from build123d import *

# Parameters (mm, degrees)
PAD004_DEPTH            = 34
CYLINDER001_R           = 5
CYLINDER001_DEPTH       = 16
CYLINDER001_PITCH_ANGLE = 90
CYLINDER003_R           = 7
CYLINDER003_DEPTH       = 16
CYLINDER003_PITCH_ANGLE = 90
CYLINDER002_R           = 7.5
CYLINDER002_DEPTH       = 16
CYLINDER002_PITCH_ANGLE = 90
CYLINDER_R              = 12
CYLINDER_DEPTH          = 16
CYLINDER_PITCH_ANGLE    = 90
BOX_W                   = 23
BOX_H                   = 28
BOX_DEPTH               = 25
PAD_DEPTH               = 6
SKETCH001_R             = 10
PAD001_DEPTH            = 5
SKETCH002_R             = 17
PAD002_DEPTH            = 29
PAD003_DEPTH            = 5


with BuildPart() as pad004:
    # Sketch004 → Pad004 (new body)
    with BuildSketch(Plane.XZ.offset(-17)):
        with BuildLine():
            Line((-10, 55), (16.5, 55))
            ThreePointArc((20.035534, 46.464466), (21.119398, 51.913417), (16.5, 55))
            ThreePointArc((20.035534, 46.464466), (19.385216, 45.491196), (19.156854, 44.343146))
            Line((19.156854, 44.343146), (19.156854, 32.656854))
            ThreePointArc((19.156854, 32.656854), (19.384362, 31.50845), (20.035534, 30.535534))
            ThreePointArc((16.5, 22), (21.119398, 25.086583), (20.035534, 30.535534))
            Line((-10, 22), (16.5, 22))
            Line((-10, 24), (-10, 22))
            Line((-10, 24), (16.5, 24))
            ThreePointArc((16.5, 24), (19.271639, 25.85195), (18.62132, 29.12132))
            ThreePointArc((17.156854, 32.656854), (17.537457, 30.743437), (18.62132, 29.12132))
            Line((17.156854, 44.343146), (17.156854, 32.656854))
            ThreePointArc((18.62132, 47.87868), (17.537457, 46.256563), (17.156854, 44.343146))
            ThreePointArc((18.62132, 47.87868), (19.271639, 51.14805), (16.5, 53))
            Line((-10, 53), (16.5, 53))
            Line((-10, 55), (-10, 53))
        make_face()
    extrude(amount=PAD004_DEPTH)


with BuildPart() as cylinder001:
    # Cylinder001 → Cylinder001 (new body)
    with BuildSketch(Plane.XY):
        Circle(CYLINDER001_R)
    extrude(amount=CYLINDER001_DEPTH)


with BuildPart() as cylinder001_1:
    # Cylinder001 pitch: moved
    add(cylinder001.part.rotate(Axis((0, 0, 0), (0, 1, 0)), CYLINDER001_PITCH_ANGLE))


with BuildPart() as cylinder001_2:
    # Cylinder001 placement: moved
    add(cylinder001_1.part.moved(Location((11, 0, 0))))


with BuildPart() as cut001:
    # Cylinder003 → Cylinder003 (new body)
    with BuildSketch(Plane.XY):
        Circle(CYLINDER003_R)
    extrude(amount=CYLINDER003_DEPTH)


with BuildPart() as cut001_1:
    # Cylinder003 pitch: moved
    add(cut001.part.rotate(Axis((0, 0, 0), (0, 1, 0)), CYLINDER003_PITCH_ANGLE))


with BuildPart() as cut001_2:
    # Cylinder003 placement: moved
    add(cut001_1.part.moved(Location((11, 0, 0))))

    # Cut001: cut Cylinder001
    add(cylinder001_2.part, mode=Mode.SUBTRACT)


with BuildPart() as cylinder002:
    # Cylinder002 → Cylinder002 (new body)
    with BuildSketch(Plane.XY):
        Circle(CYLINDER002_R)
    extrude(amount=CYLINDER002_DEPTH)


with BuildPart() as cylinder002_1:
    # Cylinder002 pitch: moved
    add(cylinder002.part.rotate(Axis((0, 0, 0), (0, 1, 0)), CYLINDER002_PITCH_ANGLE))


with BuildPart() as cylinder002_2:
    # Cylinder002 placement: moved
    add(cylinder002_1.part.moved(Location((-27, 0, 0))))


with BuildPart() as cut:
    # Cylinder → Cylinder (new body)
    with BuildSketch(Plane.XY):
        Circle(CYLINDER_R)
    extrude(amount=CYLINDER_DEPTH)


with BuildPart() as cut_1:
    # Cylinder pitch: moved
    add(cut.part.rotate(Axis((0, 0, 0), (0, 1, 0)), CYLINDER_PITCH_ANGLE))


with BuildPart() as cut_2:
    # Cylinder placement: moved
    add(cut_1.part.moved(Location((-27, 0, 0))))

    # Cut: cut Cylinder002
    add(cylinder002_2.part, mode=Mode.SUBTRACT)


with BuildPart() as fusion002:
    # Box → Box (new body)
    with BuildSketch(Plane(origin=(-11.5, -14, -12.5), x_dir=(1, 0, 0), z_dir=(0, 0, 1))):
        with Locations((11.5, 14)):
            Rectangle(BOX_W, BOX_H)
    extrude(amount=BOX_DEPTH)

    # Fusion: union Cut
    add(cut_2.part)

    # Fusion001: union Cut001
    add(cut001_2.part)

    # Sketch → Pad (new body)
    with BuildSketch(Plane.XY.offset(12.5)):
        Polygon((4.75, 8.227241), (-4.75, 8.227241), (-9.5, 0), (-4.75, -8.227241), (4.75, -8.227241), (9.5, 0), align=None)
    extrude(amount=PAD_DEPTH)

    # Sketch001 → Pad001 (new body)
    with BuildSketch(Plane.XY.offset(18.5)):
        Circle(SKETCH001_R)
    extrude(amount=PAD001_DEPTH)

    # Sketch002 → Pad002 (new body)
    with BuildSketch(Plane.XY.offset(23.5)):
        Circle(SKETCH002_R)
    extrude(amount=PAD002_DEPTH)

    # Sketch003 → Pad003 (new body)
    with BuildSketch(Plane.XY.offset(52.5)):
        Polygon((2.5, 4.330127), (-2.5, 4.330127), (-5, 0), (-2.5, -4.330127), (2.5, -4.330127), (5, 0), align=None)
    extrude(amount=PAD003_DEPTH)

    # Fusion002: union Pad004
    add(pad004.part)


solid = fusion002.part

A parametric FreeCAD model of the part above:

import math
import FreeCAD as App
import Part
import Sketcher

V = App.Vector
Q = App.Units.Quantity


def add_polygon(sketch, points):
    """Adds a closed chain of lines whose ends are joined by coincident constraints."""
    first, n = sketch.GeometryCount, len(points)
    for a, b in zip(points, points[1:] + points[:1]):
        sketch.addGeometry(Part.LineSegment(App.Vector(*a, 0), App.Vector(*b, 0)), False)
    for i in range(n):
        sketch.addConstraint(Sketcher.Constraint("Coincident", first + i, 2, first + (i + 1) % n, 1))

doc = App.newDocument("Part")
body = doc.addObject("PartDesign::Body", "Body")

sketch1 = body.newObject("Sketcher::SketchObject", "Sketch")
sketch1.AttachmentSupport = (doc.getObject("XZ_Plane"), [""])
sketch1.MapMode = "FlatFace"
sketch1.AttachmentOffset = App.Placement(V(0, 0, -17), App.Rotation())
sketch1.addGeometry(Part.LineSegment(V(16.5, 55, 0), V(-10, 55, 0)), False)
sketch1.addGeometry(Part.LineSegment(V(-10, 55, 0), V(-10, 53, 0)), False)
sketch1.addGeometry(Part.LineSegment(V(-10, 53, 0), V(16.5, 53, 0)), False)
sketch1.addGeometry(Part.ArcOfCircle(Part.Circle(V(16.500001, 50.000001, 0), V(0, 0, 1), 2.999999), math.radians(-45.000016), math.radians(90.000012)), False)
sketch1.addGeometry(Part.ArcOfCircle(Part.Circle(V(22.156863, 44.343142, 0), V(0, 0, 1), 5.000009), math.radians(135.000045), math.radians(179.999959)), False)
sketch1.addGeometry(Part.LineSegment(V(17.156854, 44.343146, 0), V(17.156854, 32.656854, 0)), False)
sketch1.addGeometry(Part.ArcOfCircle(Part.Circle(V(22.156863, 32.656858, 0), V(0, 0, 1), 5.000009), math.radians(-179.999959), math.radians(-135.000045)), False)
sketch1.addGeometry(Part.ArcOfCircle(Part.Circle(V(16.500001, 26.999999, 0), V(0, 0, 1), 2.999999), math.radians(-90.000012), math.radians(45.000016)), False)
sketch1.addGeometry(Part.LineSegment(V(16.5, 24, 0), V(-10, 24, 0)), False)
sketch1.addGeometry(Part.LineSegment(V(-10, 24, 0), V(-10, 22, 0)), False)
sketch1.addGeometry(Part.LineSegment(V(-10, 22, 0), V(16.5, 22, 0)), False)
sketch1.addGeometry(Part.ArcOfCircle(Part.Circle(V(16.5, 27, 0), V(0, 0, 1), 5), math.radians(-90.000003), math.radians(45.000003)), False)
sketch1.addGeometry(Part.ArcOfCircle(Part.Circle(V(22.145682, 32.652227, 0), V(0, 0, 1), 2.988832), math.radians(179.911303), math.radians(225.088719)), False)
sketch1.addGeometry(Part.LineSegment(V(19.156854, 32.656854, 0), V(19.156854, 44.343146, 0)), False)
sketch1.addGeometry(Part.ArcOfCircle(Part.Circle(V(22.156859, 44.343143, 0), V(0, 0, 1), 3.000005), math.radians(135.000029), math.radians(179.999948)), False)
sketch1.addGeometry(Part.ArcOfCircle(Part.Circle(V(16.5, 50, 0), V(0, 0, 1), 5), math.radians(-45.000003), math.radians(90.000003)), False)
sketch1.addConstraint(Sketcher.Constraint("Coincident", 0, 2, 1, 1))
sketch1.addConstraint(Sketcher.Constraint("Coincident", 1, 2, 2, 1))
sketch1.addConstraint(Sketcher.Constraint("Tangent", 2, 2, 3, 2))
sketch1.addConstraint(Sketcher.Constraint("Tangent", 3, 1, 4, 1))
sketch1.addConstraint(Sketcher.Constraint("Tangent", 4, 2, 5, 1))
sketch1.addConstraint(Sketcher.Constraint("Tangent", 5, 2, 6, 1))
sketch1.addConstraint(Sketcher.Constraint("Tangent", 6, 2, 7, 2))
sketch1.addConstraint(Sketcher.Constraint("Tangent", 7, 1, 8, 1))
sketch1.addConstraint(Sketcher.Constraint("Coincident", 8, 2, 9, 1))
sketch1.addConstraint(Sketcher.Constraint("Coincident", 9, 2, 10, 1))
sketch1.addConstraint(Sketcher.Constraint("Tangent", 10, 2, 11, 1))
sketch1.addConstraint(Sketcher.Constraint("Coincident", 11, 2, 12, 2))
sketch1.addConstraint(Sketcher.Constraint("Coincident", 12, 1, 13, 1))
sketch1.addConstraint(Sketcher.Constraint("Tangent", 13, 2, 14, 2))
sketch1.addConstraint(Sketcher.Constraint("Tangent", 14, 1, 15, 1))
sketch1.addConstraint(Sketcher.Constraint("Tangent", 15, 2, 0, 1))
sketch1.addConstraint(Sketcher.Constraint("Horizontal", 0))
sketch1.addConstraint(Sketcher.Constraint("Vertical", 1))
sketch1.addConstraint(Sketcher.Constraint("Horizontal", 2))
sketch1.addConstraint(Sketcher.Constraint("Vertical", 5))
sketch1.addConstraint(Sketcher.Constraint("Horizontal", 8))
sketch1.addConstraint(Sketcher.Constraint("Vertical", 9))
sketch1.addConstraint(Sketcher.Constraint("Horizontal", 10))
sketch1.addConstraint(Sketcher.Constraint("Vertical", 13))
sketch1.addConstraint(Sketcher.Constraint("Coincident", 11, 3, 7, 3))
sketch1.addConstraint(Sketcher.Constraint("Coincident", 14, 3, 4, 3))
sketch1.addConstraint(Sketcher.Constraint("Coincident", 15, 3, 3, 3))
sketch1.addConstraint(Sketcher.Constraint("Equal", 4, 6))
sketch1.addConstraint(Sketcher.Constraint("Equal", 3, 7))
sketch1.addConstraint(Sketcher.Constraint("Equal", 11, 15))
sketch1.addConstraint(Sketcher.Constraint("Horizontal", 5, 2, 12, 1))
sketch1.addConstraint(Sketcher.Constraint("Vertical", 3, 3, 7, 3))
sketch1.addConstraint(Sketcher.Constraint("Vertical", 1, 2, 8, 2))
sketch1.addConstraint(Sketcher.Constraint("Vertical", 11, 2, 14, 1))
sketch1.addConstraint(Sketcher.Constraint("Radius", 3, 2.999999))
sketch1.addConstraint(Sketcher.Constraint("Radius", 11, 5.0))
sketch1.addConstraint(Sketcher.Constraint("DistanceX", 0, 2, 0, 1, 26.5))
sketch1.addConstraint(Sketcher.Constraint("DistanceY", -1, 1, 3, 3, 50.000001))
sketch1.addConstraint(Sketcher.Constraint("DistanceY", -1, 1, 7, 3, 26.999999))
sketch1.addConstraint(Sketcher.Constraint("DistanceX", 0, 2, -1, 1, 10.0))
sketch1.addConstraint(Sketcher.Constraint("Radius", 4, 5.000009))
sketch1.addConstraint(Sketcher.Constraint("Radius", 12, 2.988832))
sketch1.addConstraint(Sketcher.Constraint("DistanceY", 5, 2, 5, 1, 11.686292))
pad1 = body.newObject("PartDesign::Pad", "Pad")
pad1.Profile = sketch1
pad1.Length = 34
body2 = doc.addObject("PartDesign::Body", "Body001")

sketch2 = body2.newObject("Sketcher::SketchObject", "Sketch001")
sketch2.AttachmentSupport = (doc.getObject("XY_Plane001"), [""])
sketch2.MapMode = "FlatFace"
sketch2.addGeometry(Part.Circle(V(0, 0, 0), V(0, 0, 1), 5), False)
sketch2.addConstraint(Sketcher.Constraint("Coincident", 0, 3, -1, 1))
sketch2.addConstraint(Sketcher.Constraint("Diameter", 0, 10.0))
pad2 = body2.newObject("PartDesign::Pad", "Pad001")
pad2.Profile = sketch2
pad2.Length = 16
body3 = doc.addObject("PartDesign::Body", "Body002")
doc.recompute()

body2.Placement = App.Placement(V(0, 0, 0), App.Rotation(V(0, 1, 0), 90))
boolean = body3.newObject("PartDesign::Boolean", "Boolean")
boolean.Type = "Fuse"
boolean.addObjects([body2])
body4 = doc.addObject("PartDesign::Body", "Body003")
doc.recompute()

body3.Placement = App.Placement(V(11, 0, 0), App.Rotation(V(0, 0, 1), 0))
boolean2 = body4.newObject("PartDesign::Boolean", "Boolean001")
boolean2.Type = "Fuse"
boolean2.addObjects([body3])
body5 = doc.addObject("PartDesign::Body", "Body004")

sketch3 = body5.newObject("Sketcher::SketchObject", "Sketch002")
sketch3.AttachmentSupport = (doc.getObject("XY_Plane004"), [""])
sketch3.MapMode = "FlatFace"
sketch3.addGeometry(Part.Circle(V(0, 0, 0), V(0, 0, 1), 7), False)
sketch3.addConstraint(Sketcher.Constraint("Coincident", 0, 3, -1, 1))
sketch3.addConstraint(Sketcher.Constraint("Diameter", 0, 14.0))
pad3 = body5.newObject("PartDesign::Pad", "Pad002")
pad3.Profile = sketch3
pad3.Length = 16
body6 = doc.addObject("PartDesign::Body", "Body005")
doc.recompute()

body5.Placement = App.Placement(V(0, 0, 0), App.Rotation(V(0, 1, 0), 90))
boolean3 = body6.newObject("PartDesign::Boolean", "Boolean002")
boolean3.Type = "Fuse"
boolean3.addObjects([body5])
body7 = doc.addObject("PartDesign::Body", "Body006")
doc.recompute()

body6.Placement = App.Placement(V(11, 0, 0), App.Rotation(V(0, 0, 1), 0))
boolean4 = body7.newObject("PartDesign::Boolean", "Boolean003")
boolean4.Type = "Fuse"
boolean4.addObjects([body6])
doc.recompute()

boolean5 = body7.newObject("PartDesign::Boolean", "Boolean004")
boolean5.Type = "Cut"
boolean5.addObjects([body4])
body8 = doc.addObject("PartDesign::Body", "Body007")

sketch4 = body8.newObject("Sketcher::SketchObject", "Sketch003")
sketch4.AttachmentSupport = (doc.getObject("XY_Plane007"), [""])
sketch4.MapMode = "FlatFace"
sketch4.addGeometry(Part.Circle(V(0, 0, 0), V(0, 0, 1), 7.5), False)
sketch4.addConstraint(Sketcher.Constraint("Coincident", 0, 3, -1, 1))
sketch4.addConstraint(Sketcher.Constraint("Diameter", 0, 15.0))
pad4 = body8.newObject("PartDesign::Pad", "Pad003")
pad4.Profile = sketch4
pad4.Length = 16
body9 = doc.addObject("PartDesign::Body", "Body008")
doc.recompute()

body8.Placement = App.Placement(V(0, 0, 0), App.Rotation(V(0, 1, 0), 90))
boolean6 = body9.newObject("PartDesign::Boolean", "Boolean005")
boolean6.Type = "Fuse"
boolean6.addObjects([body8])
body10 = doc.addObject("PartDesign::Body", "Body009")
doc.recompute()

body9.Placement = App.Placement(V(-27, 0, 0), App.Rotation(V(0, 0, 1), 0))
boolean7 = body10.newObject("PartDesign::Boolean", "Boolean006")
boolean7.Type = "Fuse"
boolean7.addObjects([body9])
body11 = doc.addObject("PartDesign::Body", "Body010")

sketch5 = body11.newObject("Sketcher::SketchObject", "Sketch004")
sketch5.AttachmentSupport = (doc.getObject("XY_Plane010"), [""])
sketch5.MapMode = "FlatFace"
sketch5.addGeometry(Part.Circle(V(0, 0, 0), V(0, 0, 1), 12), False)
sketch5.addConstraint(Sketcher.Constraint("Coincident", 0, 3, -1, 1))
sketch5.addConstraint(Sketcher.Constraint("Diameter", 0, 24.0))
pad5 = body11.newObject("PartDesign::Pad", "Pad004")
pad5.Profile = sketch5
pad5.Length = 16
body12 = doc.addObject("PartDesign::Body", "Body011")
doc.recompute()

body11.Placement = App.Placement(V(0, 0, 0), App.Rotation(V(0, 1, 0), 90))
boolean8 = body12.newObject("PartDesign::Boolean", "Boolean007")
boolean8.Type = "Fuse"
boolean8.addObjects([body11])
body13 = doc.addObject("PartDesign::Body", "Body012")
doc.recompute()

body12.Placement = App.Placement(V(-27, 0, 0), App.Rotation(V(0, 0, 1), 0))
boolean9 = body13.newObject("PartDesign::Boolean", "Boolean008")
boolean9.Type = "Fuse"
boolean9.addObjects([body12])
doc.recompute()

boolean10 = body13.newObject("PartDesign::Boolean", "Boolean009")
boolean10.Type = "Cut"
boolean10.addObjects([body10])
body14 = doc.addObject("PartDesign::Body", "Body013")

sketch6 = body14.newObject("Sketcher::SketchObject", "Sketch005")
sketch6.AttachmentSupport = (doc.getObject("XY_Plane013"), [""])
sketch6.MapMode = "FlatFace"
sketch6.AttachmentOffset = App.Placement(V(0, 0, -12.5), App.Rotation())
add_polygon(sketch6, [(-11.5, 14), (-11.5, -14), (11.5, -14), (11.5, 14)])
sketch6.addConstraint(Sketcher.Constraint("Vertical", 0))
sketch6.addConstraint(Sketcher.Constraint("Horizontal", 1))
sketch6.addConstraint(Sketcher.Constraint("Vertical", 2))
sketch6.addConstraint(Sketcher.Constraint("Horizontal", 3))
sketch6.addConstraint(Sketcher.Constraint("Symmetric", 0, 2, 2, 2, -1, 1))
sketch6.addConstraint(Sketcher.Constraint("DistanceX", 1, 1, 1, 2, 23.0))
sketch6.addConstraint(Sketcher.Constraint("DistanceY", 0, 2, 0, 1, 28.0))
pad6 = body14.newObject("PartDesign::Pad", "Pad005")
pad6.Profile = sketch6
pad6.Length = 25
doc.recompute()

boolean11 = body14.newObject("PartDesign::Boolean", "Boolean010")
boolean11.Type = "Fuse"
boolean11.addObjects([body13])
doc.recompute()

boolean12 = body14.newObject("PartDesign::Boolean", "Boolean011")
boolean12.Type = "Fuse"
boolean12.addObjects([body7])

sketch7 = body14.newObject("Sketcher::SketchObject", "Sketch006")
sketch7.AttachmentSupport = (doc.getObject("XY_Plane013"), [""])
sketch7.MapMode = "FlatFace"
sketch7.AttachmentOffset = App.Placement(V(0, 0, 12.5), App.Rotation())
add_polygon(sketch7, [(4.75, 8.227241), (-4.75, 8.227241), (-9.5, 0), (-4.75, -8.227241), (4.75, -8.227241), (9.5, 0)])
sketch7.addConstraint(Sketcher.Constraint("Horizontal", 0))
sketch7.addConstraint(Sketcher.Constraint("Horizontal", 3))
sketch7.addConstraint(Sketcher.Constraint("Symmetric", 0, 2, 3, 2, -1, 1))
sketch7.addConstraint(Sketcher.Constraint("Symmetric", 1, 2, 4, 2, -1, 1))
sketch7.addConstraint(Sketcher.Constraint("PointOnObject", 1, 2, -1))
sketch7.addConstraint(Sketcher.Constraint("Parallel", 2, 5))
sketch7.addConstraint(Sketcher.Constraint("Vertical", 0, 2, 2, 2))
sketch7.addConstraint(Sketcher.Constraint("Angle", 1, Q("-120.000001 deg")))
sketch7.addConstraint(Sketcher.Constraint("DistanceX", 0, 2, 0, 1, 9.5))
sketch7.addConstraint(Sketcher.Constraint("DistanceX", 1, 2, 4, 2, 19.0))
pad7 = body14.newObject("PartDesign::Pad", "Pad006")
pad7.Profile = sketch7
pad7.Length = 6

sketch8 = body14.newObject("Sketcher::SketchObject", "Sketch007")
sketch8.AttachmentSupport = (doc.getObject("XY_Plane013"), [""])
sketch8.MapMode = "FlatFace"
sketch8.AttachmentOffset = App.Placement(V(0, 0, 18.5), App.Rotation())
sketch8.addGeometry(Part.Circle(V(0, 0, 0), V(0, 0, 1), 10), False)
sketch8.addConstraint(Sketcher.Constraint("Coincident", 0, 3, -1, 1))
sketch8.addConstraint(Sketcher.Constraint("Diameter", 0, 20.0))
pad8 = body14.newObject("PartDesign::Pad", "Pad007")
pad8.Profile = sketch8
pad8.Length = 5

sketch9 = body14.newObject("Sketcher::SketchObject", "Sketch008")
sketch9.AttachmentSupport = (doc.getObject("XY_Plane013"), [""])
sketch9.MapMode = "FlatFace"
sketch9.AttachmentOffset = App.Placement(V(0, 0, 23.5), App.Rotation())
sketch9.addGeometry(Part.Circle(V(0, 0, 0), V(0, 0, 1), 17), False)
sketch9.addConstraint(Sketcher.Constraint("Coincident", 0, 3, -1, 1))
sketch9.addConstraint(Sketcher.Constraint("Diameter", 0, 34.0))
pad9 = body14.newObject("PartDesign::Pad", "Pad008")
pad9.Profile = sketch9
pad9.Length = 29

sketch10 = body14.newObject("Sketcher::SketchObject", "Sketch009")
sketch10.AttachmentSupport = (doc.getObject("XY_Plane013"), [""])
sketch10.MapMode = "FlatFace"
sketch10.AttachmentOffset = App.Placement(V(0, 0, 52.5), App.Rotation())
add_polygon(sketch10, [(2.5, 4.330127), (-2.5, 4.330127), (-5, 0), (-2.5, -4.330127), (2.5, -4.330127), (5, 0)])
sketch10.addConstraint(Sketcher.Constraint("Horizontal", 0))
sketch10.addConstraint(Sketcher.Constraint("Horizontal", 3))
sketch10.addConstraint(Sketcher.Constraint("Symmetric", 0, 2, 3, 2, -1, 1))
sketch10.addConstraint(Sketcher.Constraint("Symmetric", 1, 2, 4, 2, -1, 1))
sketch10.addConstraint(Sketcher.Constraint("PointOnObject", 1, 2, -1))
sketch10.addConstraint(Sketcher.Constraint("Parallel", 2, 5))
sketch10.addConstraint(Sketcher.Constraint("Vertical", 0, 2, 2, 2))
sketch10.addConstraint(Sketcher.Constraint("DistanceX", 0, 2, 0, 1, 5.0))
sketch10.addConstraint(Sketcher.Constraint("Angle", 1, Q("-120 deg")))
sketch10.addConstraint(Sketcher.Constraint("Distance", 1, 5.0))
pad10 = body14.newObject("PartDesign::Pad", "Pad009")
pad10.Profile = sketch10
pad10.Length = 5
doc.recompute()

boolean13 = body14.newObject("PartDesign::Boolean", "Boolean012")
boolean13.Type = "Fuse"
boolean13.addObjects([body])

doc.recompute()
